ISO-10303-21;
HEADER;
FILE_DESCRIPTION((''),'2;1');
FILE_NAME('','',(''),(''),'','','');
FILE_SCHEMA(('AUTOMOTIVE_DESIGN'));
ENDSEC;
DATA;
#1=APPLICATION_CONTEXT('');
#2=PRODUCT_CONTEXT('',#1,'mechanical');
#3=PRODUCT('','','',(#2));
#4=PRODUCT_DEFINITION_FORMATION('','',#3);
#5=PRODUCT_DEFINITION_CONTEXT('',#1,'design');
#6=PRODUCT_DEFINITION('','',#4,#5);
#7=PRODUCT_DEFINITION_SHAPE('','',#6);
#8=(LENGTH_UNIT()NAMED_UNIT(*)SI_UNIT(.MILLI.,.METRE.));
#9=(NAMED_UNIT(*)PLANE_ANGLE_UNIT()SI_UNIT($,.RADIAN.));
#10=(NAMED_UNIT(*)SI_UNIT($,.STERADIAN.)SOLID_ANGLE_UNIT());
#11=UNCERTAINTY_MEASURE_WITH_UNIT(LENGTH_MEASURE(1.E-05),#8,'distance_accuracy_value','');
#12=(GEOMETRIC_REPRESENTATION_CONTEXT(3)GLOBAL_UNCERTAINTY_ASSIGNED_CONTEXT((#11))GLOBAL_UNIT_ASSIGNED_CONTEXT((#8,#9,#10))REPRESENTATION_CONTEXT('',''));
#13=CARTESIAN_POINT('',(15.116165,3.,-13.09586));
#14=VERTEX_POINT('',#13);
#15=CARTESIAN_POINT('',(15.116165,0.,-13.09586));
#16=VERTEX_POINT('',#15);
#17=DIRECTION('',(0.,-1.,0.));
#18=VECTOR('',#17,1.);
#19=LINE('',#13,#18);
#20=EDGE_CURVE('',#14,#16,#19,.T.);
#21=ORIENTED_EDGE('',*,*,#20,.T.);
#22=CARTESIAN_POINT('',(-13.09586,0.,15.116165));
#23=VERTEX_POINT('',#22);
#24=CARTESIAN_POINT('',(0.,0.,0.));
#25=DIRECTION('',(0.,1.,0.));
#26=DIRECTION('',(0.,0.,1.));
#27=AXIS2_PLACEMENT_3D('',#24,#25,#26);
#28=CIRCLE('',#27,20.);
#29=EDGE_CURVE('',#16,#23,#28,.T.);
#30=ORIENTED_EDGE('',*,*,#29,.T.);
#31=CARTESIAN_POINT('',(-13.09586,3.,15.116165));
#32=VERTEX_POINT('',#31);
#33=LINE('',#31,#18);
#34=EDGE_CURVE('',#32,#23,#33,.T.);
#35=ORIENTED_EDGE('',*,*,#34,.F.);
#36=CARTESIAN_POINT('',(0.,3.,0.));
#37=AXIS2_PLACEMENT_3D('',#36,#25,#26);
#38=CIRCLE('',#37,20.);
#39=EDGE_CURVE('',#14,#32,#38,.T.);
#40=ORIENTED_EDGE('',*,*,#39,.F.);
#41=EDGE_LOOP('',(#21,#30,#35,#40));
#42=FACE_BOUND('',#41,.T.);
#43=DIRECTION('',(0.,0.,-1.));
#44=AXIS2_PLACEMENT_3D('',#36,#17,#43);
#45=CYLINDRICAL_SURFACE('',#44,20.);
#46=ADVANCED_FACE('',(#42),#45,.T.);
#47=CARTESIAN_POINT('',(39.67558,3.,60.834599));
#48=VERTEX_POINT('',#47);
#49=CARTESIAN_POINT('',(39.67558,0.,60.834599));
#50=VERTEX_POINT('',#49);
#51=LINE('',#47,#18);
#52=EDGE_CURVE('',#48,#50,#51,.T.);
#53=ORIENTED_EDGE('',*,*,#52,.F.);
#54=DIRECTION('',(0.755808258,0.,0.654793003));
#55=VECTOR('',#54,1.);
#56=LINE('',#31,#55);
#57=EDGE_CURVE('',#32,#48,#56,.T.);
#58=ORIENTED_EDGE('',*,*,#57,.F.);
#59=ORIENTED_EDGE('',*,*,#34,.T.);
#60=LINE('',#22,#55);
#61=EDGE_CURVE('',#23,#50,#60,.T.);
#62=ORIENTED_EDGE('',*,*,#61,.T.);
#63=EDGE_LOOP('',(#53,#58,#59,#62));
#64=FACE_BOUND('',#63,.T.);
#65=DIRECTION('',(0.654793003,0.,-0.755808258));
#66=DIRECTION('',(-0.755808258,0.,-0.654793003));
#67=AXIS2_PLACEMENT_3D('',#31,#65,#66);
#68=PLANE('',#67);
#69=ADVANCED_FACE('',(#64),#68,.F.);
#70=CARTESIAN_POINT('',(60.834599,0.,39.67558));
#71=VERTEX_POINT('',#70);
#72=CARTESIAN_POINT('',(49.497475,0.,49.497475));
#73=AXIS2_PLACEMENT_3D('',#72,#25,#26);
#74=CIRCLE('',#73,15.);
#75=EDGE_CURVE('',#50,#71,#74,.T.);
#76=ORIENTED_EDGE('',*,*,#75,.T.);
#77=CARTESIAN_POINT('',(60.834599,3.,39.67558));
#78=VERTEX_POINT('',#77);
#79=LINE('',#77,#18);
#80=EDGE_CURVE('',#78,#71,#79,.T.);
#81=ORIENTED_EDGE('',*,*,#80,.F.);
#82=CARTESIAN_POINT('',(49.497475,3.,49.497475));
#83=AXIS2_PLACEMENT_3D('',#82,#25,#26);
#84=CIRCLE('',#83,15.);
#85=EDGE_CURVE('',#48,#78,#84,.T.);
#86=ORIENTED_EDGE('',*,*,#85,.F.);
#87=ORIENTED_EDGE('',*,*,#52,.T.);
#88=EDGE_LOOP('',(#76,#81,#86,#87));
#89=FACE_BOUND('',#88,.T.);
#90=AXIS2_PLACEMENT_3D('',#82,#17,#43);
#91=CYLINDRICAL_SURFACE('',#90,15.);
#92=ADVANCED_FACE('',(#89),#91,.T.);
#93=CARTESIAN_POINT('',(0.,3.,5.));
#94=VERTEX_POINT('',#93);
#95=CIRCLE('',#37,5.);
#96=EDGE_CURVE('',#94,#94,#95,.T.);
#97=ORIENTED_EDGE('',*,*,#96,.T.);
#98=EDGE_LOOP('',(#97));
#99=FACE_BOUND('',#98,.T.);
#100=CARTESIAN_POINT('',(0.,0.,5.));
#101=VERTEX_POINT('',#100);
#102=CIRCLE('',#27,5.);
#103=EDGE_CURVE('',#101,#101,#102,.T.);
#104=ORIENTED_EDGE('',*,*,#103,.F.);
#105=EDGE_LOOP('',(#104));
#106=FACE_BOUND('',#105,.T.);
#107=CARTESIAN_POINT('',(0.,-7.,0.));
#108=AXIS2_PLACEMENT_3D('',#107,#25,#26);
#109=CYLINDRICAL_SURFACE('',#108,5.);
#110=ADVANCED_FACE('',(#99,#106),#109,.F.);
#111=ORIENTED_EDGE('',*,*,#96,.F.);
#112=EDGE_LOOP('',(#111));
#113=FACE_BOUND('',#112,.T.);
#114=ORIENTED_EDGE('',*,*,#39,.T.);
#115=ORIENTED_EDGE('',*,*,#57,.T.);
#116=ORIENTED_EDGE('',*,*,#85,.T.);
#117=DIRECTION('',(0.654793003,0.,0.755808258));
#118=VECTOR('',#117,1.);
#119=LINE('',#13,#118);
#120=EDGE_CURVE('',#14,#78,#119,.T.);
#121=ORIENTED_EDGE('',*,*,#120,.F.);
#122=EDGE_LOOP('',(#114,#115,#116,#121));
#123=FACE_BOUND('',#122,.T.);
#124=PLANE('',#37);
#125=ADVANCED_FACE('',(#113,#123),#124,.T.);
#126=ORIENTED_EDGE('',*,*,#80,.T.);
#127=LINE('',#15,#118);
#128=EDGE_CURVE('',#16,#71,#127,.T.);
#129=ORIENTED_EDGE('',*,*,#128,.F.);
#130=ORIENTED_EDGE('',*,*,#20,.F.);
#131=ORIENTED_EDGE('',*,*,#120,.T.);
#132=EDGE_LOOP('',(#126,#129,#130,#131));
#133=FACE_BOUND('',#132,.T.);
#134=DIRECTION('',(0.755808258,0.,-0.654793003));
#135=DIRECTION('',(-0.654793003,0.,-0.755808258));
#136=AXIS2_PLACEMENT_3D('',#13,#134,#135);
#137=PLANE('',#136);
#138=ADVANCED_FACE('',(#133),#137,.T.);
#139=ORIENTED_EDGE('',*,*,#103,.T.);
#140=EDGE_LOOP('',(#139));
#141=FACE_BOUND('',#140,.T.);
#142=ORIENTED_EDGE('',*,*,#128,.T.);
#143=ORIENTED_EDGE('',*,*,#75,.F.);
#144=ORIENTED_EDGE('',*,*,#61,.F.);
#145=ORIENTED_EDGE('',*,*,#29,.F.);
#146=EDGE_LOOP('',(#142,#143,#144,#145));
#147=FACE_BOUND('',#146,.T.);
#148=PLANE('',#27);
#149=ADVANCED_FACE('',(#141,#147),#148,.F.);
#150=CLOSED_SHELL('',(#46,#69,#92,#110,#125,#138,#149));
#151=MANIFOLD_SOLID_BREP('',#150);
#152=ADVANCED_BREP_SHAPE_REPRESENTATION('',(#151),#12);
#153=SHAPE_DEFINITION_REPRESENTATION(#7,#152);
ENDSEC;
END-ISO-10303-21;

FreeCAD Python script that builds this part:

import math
import FreeCAD as App
import Part
import Sketcher

doc = App.newDocument("Part")
body = doc.addObject("PartDesign::Body", "Body")

sketch1 = body.newObject("Sketcher::SketchObject", "Sketch")
sketch1.AttachmentSupport = (doc.getObject("XZ_Plane"), [""])
sketch1.MapMode = "FlatFace"
sketch1.addGeometry([
    Part.ArcOfCircle(Part.Circle(App.Vector(0, 0, 0), App.Vector(0, 0, 1), 20), math.radians(131), math.radians(319)),
    Part.LineSegment(App.Vector(-13, 15, 0), App.Vector(40, 61, 0)),
    Part.ArcOfCircle(Part.Circle(App.Vector(49, 49, 0), App.Vector(0, 0, 1), 15), math.radians(-41), math.radians(131)),
    Part.LineSegment(App.Vector(61, 40, 0), App.Vector(15, -13, 0)),
], False)
sketch1.addConstraint([
    Sketcher.Constraint("Tangent", 0, 1, 1, 1),
    Sketcher.Constraint("Tangent", 1, 2, 2, 2),
    Sketcher.Constraint("Tangent", 2, 1, 3, 1),
    Sketcher.Constraint("Tangent", 3, 2, 0, 2),
    Sketcher.Constraint("Coincident", 0, 3, -1, 1),
    Sketcher.Constraint("Radius", 0, 20.0),
    Sketcher.Constraint("Radius", 2, 15.0),
    Sketcher.Constraint("Distance", 1, 69.8212),
    Sketcher.Constraint("DistanceY", -1, 1, 1, 2, 60.834599),
])
pad1 = body.newObject("PartDesign::Pad", "Pad")
pad1.Profile = sketch1
pad1.Length = 3
pad1.Reversed = True

sketch2 = body.newObject("Sketcher::SketchObject", "Sketch001")
sketch2.AttachmentSupport = (doc.getObject("XZ_Plane"), [""])
sketch2.MapMode = "FlatFace"
sketch2.AttachmentOffset = App.Placement(App.Vector(0, 0, -3), App.Rotation())
sketch2.addGeometry(Part.Circle(App.Vector(0, 0, 0), App.Vector(0, 0, 1), 2.5), False)
sketch2.addConstraint([
    Sketcher.Constraint("Coincident", 0, 3, -1, 1),
    Sketcher.Constraint("Diameter", 0, 5.0),
])
pocket1 = body.newObject("PartDesign::Pocket", "Pocket")
pocket1.Profile = sketch2
pocket1.Type = "ThroughAll"
pocket1.Reversed = True

sketch3 = body.newObject("Sketcher::SketchObject", "Sketch002")
sketch3.AttachmentSupport = (doc.getObject("XZ_Plane"), [""])
sketch3.MapMode = "FlatFace"
sketch3.AttachmentOffset = App.Placement(App.Vector(0, 0, -3), App.Rotation())
sketch3.addGeometry(Part.Circle(App.Vector(0, 0, 0), App.Vector(0, 0, 1), 5), False)
sketch3.addConstraint([
    Sketcher.Constraint("Coincident", 0, 3, -1, 1),
    Sketcher.Constraint("Diameter", 0, 10.0),
])
pocket2 = body.newObject("PartDesign::Pocket", "Pocket001")
pocket2.Profile = sketch3
pocket2.Length = 10
pocket2.Reversed = True

doc.recompute()
